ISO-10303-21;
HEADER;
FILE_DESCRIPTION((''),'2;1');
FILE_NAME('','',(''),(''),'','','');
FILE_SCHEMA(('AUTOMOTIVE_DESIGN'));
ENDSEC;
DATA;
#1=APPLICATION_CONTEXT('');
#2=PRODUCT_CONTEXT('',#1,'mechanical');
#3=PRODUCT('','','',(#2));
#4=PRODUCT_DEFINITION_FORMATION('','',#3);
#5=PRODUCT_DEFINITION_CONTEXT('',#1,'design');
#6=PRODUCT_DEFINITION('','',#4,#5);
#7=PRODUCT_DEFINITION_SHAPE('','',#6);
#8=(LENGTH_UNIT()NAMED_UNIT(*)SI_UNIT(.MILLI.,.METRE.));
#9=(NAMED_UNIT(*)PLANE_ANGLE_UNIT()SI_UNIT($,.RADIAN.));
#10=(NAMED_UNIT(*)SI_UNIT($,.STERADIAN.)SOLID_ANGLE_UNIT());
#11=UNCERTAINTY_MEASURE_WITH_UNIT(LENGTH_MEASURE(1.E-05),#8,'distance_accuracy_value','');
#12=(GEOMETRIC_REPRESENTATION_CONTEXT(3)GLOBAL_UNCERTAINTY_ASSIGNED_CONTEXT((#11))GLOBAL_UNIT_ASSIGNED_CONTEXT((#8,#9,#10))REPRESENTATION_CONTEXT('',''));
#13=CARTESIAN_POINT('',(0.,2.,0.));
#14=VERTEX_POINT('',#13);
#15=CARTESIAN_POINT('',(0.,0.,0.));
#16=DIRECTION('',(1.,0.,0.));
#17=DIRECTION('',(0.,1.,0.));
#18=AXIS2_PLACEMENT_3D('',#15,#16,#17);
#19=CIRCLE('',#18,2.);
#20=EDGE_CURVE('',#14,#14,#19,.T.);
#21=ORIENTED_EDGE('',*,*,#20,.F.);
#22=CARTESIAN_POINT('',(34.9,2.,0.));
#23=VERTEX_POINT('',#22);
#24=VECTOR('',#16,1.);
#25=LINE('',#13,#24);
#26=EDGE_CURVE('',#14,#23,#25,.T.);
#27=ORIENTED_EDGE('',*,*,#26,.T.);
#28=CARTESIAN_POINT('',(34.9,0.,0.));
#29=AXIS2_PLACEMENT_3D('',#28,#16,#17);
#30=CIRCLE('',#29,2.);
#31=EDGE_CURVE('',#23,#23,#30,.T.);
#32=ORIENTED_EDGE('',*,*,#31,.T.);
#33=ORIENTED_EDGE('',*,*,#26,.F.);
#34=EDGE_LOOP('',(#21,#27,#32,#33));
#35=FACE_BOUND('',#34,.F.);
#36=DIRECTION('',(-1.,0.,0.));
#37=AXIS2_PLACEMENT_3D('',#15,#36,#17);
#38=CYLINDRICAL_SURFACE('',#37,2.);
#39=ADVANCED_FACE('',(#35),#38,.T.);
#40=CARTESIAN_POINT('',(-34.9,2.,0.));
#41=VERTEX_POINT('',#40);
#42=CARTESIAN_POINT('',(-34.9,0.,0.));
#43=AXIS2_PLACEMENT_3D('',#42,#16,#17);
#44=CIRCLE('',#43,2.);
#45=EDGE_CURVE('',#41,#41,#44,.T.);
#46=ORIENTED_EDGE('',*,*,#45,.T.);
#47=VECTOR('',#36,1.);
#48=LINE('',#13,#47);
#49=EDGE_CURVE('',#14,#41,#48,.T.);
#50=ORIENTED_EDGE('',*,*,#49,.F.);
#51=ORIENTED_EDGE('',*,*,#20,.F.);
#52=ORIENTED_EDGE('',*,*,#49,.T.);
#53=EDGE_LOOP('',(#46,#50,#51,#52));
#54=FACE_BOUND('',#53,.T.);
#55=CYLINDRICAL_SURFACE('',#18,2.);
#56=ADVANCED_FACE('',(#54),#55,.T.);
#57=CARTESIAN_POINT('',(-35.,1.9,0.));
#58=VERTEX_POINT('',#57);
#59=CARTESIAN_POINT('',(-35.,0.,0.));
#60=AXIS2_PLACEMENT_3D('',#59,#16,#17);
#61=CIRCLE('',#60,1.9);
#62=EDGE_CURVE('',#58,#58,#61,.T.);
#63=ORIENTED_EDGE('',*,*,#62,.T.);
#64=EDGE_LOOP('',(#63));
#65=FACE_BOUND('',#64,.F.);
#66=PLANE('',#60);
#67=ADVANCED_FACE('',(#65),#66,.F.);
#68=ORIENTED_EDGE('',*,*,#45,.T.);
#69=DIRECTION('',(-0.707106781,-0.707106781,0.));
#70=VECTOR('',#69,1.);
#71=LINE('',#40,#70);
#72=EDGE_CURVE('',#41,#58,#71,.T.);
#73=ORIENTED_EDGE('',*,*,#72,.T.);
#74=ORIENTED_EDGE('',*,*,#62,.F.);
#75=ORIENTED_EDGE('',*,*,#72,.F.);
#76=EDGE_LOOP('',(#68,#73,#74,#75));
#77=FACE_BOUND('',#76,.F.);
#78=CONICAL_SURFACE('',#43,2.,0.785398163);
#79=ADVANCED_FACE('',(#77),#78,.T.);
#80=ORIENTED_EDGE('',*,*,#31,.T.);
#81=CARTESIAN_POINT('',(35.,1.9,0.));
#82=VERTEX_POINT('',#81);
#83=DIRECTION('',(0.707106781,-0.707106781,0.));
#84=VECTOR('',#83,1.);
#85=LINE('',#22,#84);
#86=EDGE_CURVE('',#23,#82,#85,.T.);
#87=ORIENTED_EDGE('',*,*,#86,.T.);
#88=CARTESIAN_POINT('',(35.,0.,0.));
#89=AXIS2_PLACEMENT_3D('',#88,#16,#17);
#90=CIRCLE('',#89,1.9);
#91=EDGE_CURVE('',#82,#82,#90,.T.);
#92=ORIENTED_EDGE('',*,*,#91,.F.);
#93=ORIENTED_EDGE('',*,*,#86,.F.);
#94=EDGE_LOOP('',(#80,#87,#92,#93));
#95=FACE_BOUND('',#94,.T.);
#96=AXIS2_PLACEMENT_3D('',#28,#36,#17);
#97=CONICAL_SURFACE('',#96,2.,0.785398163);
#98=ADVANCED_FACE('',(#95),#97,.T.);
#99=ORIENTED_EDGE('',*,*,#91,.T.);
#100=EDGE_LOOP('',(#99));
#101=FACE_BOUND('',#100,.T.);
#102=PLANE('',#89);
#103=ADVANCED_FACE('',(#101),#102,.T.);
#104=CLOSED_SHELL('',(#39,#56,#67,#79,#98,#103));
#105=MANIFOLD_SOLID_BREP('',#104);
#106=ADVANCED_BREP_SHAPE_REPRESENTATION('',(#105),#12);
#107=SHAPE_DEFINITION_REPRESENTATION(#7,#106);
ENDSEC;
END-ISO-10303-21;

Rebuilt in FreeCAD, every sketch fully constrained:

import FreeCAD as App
import Part
import Sketcher

V = App.Vector
Q = App.Units.Quantity


def edges_at(feature, points):
    """Names of the edges that pass closest to the given points."""
    edges = feature.Shape.Edges
    near = lambda p: min(range(len(edges)), key=lambda i: edges[i].distToShape(Part.Vertex(*p))[0])
    return sorted({f"Edge{near(p) + 1}" for p in points})

doc = App.newDocument("Part")
body = doc.addObject("PartDesign::Body", "Body")

# Sketch on YZ plane
sketch1 = body.newObject("Sketcher::SketchObject", "Sketch")
sketch1.AttachmentSupport = (doc.getObject("YZ_Plane"), [""])
sketch1.MapMode = "FlatFace"
sketch1.addGeometry(Part.Circle(V(0, 0, 0), V(0, 0, 1), 2), False)
sketch1.addConstraint(Sketcher.Constraint("Coincident", 0, 3, -1, 1))
sketch1.addConstraint(Sketcher.Constraint("Diameter", 0, Q("4 mm")))
pad1 = body.newObject("PartDesign::Pad", "Pad")
pad1.Profile = sketch1
pad1.Length = 70
pad1.Midplane = True
doc.recompute()

chamfer = body.newObject("PartDesign::Chamfer", "Chamfer")
chamfer.Base = (pad1, edges_at(pad1, [(-35, -2, 0), (35, -2, 0)]))
chamfer.Size = 0.1

doc.recompute()
